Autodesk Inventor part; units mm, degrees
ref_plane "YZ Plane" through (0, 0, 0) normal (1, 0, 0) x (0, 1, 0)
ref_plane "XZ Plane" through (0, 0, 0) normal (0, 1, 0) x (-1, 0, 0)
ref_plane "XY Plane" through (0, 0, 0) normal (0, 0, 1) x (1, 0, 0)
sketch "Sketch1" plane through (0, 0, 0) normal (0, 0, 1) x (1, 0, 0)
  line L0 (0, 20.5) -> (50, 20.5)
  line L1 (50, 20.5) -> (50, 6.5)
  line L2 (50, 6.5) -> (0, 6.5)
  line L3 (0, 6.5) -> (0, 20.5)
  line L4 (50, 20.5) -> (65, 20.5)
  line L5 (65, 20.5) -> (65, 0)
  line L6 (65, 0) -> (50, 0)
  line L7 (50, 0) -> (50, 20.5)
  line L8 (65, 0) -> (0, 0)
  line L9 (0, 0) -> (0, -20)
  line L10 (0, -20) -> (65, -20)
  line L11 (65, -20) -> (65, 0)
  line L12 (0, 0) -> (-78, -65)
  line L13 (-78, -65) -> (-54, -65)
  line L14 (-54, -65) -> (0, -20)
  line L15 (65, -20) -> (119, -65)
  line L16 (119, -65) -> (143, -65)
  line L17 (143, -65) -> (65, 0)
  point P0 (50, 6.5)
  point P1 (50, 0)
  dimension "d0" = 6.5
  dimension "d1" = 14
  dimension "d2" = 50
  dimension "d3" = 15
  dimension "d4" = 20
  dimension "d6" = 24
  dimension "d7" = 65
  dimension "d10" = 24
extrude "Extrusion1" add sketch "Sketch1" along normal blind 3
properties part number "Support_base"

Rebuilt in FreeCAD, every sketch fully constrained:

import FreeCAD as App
import Part
import Sketcher
from FreeCAD import Vector

doc = App.newDocument("Part")
body = doc.addObject("PartDesign::Body", "Body")

# Sketch on XY plane
sketch1 = body.newObject("Sketcher::SketchObject", "Sketch")
sketch1.AttachmentSupport = (doc.getObject("XY_Plane"), [""])
sketch1.MapMode = "FlatFace"
sketch1.addGeometry(Part.LineSegment(Vector(0, 20, 0), Vector(0, 6, 0)), False)
sketch1.addGeometry(Part.LineSegment(Vector(0, 6, 0), Vector(50, 6, 0)), False)
sketch1.addGeometry(Part.LineSegment(Vector(50, 6, 0), Vector(50, 0, 0)), False)
sketch1.addGeometry(Part.LineSegment(Vector(50, 0, 0), Vector(0, 0, 0)), False)
sketch1.addGeometry(Part.LineSegment(Vector(0, 0, 0), Vector(-78, -65, 0)), False)
sketch1.addGeometry(Part.LineSegment(Vector(-78, -65, 0), Vector(-54, -65, 0)), False)
sketch1.addGeometry(Part.LineSegment(Vector(-54, -65, 0), Vector(0, -20, 0)), False)
sketch1.addGeometry(Part.LineSegment(Vector(0, -20, 0), Vector(65, -20, 0)), False)
sketch1.addGeometry(Part.LineSegment(Vector(65, -20, 0), Vector(119, -65, 0)), False)
sketch1.addGeometry(Part.LineSegment(Vector(119, -65, 0), Vector(143, -65, 0)), False)
sketch1.addGeometry(Part.LineSegment(Vector(143, -65, 0), Vector(65, 0, 0)), False)
sketch1.addGeometry(Part.LineSegment(Vector(65, 0, 0), Vector(65, 20, 0)), False)
sketch1.addGeometry(Part.LineSegment(Vector(65, 20, 0), Vector(0, 20, 0)), False)
sketch1.addConstraint(Sketcher.Constraint("Coincident", 0, 2, 1, 1))
sketch1.addConstraint(Sketcher.Constraint("Coincident", 1, 2, 2, 1))
sketch1.addConstraint(Sketcher.Constraint("Coincident", 2, 2, 3, 1))
sketch1.addConstraint(Sketcher.Constraint("Coincident", 3, 2, 4, 1))
sketch1.addConstraint(Sketcher.Constraint("Coincident", 4, 2, 5, 1))
sketch1.addConstraint(Sketcher.Constraint("Coincident", 5, 2, 6, 1))
sketch1.addConstraint(Sketcher.Constraint("Coincident", 6, 2, 7, 1))
sketch1.addConstraint(Sketcher.Constraint("Coincident", 7, 2, 8, 1))
sketch1.addConstraint(Sketcher.Constraint("Coincident", 8, 2, 9, 1))
sketch1.addConstraint(Sketcher.Constraint("Coincident", 9, 2, 10, 1))
sketch1.addConstraint(Sketcher.Constraint("Coincident", 10, 2, 11, 1))
sketch1.addConstraint(Sketcher.Constraint("Coincident", 11, 2, 12, 1))
sketch1.addConstraint(Sketcher.Constraint("Coincident", 12, 2, 0, 1))
sketch1.addConstraint(Sketcher.Constraint("Vertical", 0))
sketch1.addConstraint(Sketcher.Constraint("Horizontal", 1))
sketch1.addConstraint(Sketcher.Constraint("Vertical", 2))
sketch1.addConstraint(Sketcher.Constraint("Horizontal", 3))
sketch1.addConstraint(Sketcher.Constraint("Horizontal", 5))
sketch1.addConstraint(Sketcher.Constraint("Horizontal", 7))
sketch1.addConstraint(Sketcher.Constraint("Horizontal", 9))
sketch1.addConstraint(Sketcher.Constraint("Vertical", 11))
sketch1.addConstraint(Sketcher.Constraint("Horizontal", 12))
sketch1.addConstraint(Sketcher.Constraint("Coincident", 3, 2, -1, 1))
sketch1.addConstraint(Sketcher.Constraint("PointOnObject", 0, 2, -2))
sketch1.addConstraint(Sketcher.Constraint("PointOnObject", 6, 2, -2))
sketch1.addConstraint(Sketcher.Constraint("PointOnObject", 10, 2, -1))
sketch1.addConstraint(Sketcher.Constraint("Parallel", 4, 6))
sketch1.addConstraint(Sketcher.Constraint("Parallel", 8, 10))
sketch1.addConstraint(Sketcher.Constraint("Horizontal", 5, 2, 8, 2))
sketch1.addConstraint(Sketcher.Constraint("Vertical", 7, 2, 10, 2))
sketch1.addConstraint(Sketcher.Constraint("Equal", 5, 9))
sketch1.addConstraint(Sketcher.Constraint("DistanceX", 1, 1, 1, 2, 50.0))
sketch1.addConstraint(Sketcher.Constraint("DistanceX", 5, 1, 5, 2, 24.0))
sketch1.addConstraint(Sketcher.Constraint("DistanceX", 7, 1, 7, 2, 65.0))
sketch1.addConstraint(Sketcher.Constraint("DistanceY", 0, 2, 0, 1, 14.0))
sketch1.addConstraint(Sketcher.Constraint("DistanceY", 2, 2, 2, 1, 6.5))
sketch1.addConstraint(Sketcher.Constraint("DistanceY", 4, 2, -1, 1, 65.0))
sketch1.addConstraint(Sketcher.Constraint("DistanceY", 6, 2, -1, 1, 20.0))
pad1 = body.newObject("PartDesign::Pad", "Pad")
pad1.Profile = sketch1
pad1.Length = 3

doc.recompute()
